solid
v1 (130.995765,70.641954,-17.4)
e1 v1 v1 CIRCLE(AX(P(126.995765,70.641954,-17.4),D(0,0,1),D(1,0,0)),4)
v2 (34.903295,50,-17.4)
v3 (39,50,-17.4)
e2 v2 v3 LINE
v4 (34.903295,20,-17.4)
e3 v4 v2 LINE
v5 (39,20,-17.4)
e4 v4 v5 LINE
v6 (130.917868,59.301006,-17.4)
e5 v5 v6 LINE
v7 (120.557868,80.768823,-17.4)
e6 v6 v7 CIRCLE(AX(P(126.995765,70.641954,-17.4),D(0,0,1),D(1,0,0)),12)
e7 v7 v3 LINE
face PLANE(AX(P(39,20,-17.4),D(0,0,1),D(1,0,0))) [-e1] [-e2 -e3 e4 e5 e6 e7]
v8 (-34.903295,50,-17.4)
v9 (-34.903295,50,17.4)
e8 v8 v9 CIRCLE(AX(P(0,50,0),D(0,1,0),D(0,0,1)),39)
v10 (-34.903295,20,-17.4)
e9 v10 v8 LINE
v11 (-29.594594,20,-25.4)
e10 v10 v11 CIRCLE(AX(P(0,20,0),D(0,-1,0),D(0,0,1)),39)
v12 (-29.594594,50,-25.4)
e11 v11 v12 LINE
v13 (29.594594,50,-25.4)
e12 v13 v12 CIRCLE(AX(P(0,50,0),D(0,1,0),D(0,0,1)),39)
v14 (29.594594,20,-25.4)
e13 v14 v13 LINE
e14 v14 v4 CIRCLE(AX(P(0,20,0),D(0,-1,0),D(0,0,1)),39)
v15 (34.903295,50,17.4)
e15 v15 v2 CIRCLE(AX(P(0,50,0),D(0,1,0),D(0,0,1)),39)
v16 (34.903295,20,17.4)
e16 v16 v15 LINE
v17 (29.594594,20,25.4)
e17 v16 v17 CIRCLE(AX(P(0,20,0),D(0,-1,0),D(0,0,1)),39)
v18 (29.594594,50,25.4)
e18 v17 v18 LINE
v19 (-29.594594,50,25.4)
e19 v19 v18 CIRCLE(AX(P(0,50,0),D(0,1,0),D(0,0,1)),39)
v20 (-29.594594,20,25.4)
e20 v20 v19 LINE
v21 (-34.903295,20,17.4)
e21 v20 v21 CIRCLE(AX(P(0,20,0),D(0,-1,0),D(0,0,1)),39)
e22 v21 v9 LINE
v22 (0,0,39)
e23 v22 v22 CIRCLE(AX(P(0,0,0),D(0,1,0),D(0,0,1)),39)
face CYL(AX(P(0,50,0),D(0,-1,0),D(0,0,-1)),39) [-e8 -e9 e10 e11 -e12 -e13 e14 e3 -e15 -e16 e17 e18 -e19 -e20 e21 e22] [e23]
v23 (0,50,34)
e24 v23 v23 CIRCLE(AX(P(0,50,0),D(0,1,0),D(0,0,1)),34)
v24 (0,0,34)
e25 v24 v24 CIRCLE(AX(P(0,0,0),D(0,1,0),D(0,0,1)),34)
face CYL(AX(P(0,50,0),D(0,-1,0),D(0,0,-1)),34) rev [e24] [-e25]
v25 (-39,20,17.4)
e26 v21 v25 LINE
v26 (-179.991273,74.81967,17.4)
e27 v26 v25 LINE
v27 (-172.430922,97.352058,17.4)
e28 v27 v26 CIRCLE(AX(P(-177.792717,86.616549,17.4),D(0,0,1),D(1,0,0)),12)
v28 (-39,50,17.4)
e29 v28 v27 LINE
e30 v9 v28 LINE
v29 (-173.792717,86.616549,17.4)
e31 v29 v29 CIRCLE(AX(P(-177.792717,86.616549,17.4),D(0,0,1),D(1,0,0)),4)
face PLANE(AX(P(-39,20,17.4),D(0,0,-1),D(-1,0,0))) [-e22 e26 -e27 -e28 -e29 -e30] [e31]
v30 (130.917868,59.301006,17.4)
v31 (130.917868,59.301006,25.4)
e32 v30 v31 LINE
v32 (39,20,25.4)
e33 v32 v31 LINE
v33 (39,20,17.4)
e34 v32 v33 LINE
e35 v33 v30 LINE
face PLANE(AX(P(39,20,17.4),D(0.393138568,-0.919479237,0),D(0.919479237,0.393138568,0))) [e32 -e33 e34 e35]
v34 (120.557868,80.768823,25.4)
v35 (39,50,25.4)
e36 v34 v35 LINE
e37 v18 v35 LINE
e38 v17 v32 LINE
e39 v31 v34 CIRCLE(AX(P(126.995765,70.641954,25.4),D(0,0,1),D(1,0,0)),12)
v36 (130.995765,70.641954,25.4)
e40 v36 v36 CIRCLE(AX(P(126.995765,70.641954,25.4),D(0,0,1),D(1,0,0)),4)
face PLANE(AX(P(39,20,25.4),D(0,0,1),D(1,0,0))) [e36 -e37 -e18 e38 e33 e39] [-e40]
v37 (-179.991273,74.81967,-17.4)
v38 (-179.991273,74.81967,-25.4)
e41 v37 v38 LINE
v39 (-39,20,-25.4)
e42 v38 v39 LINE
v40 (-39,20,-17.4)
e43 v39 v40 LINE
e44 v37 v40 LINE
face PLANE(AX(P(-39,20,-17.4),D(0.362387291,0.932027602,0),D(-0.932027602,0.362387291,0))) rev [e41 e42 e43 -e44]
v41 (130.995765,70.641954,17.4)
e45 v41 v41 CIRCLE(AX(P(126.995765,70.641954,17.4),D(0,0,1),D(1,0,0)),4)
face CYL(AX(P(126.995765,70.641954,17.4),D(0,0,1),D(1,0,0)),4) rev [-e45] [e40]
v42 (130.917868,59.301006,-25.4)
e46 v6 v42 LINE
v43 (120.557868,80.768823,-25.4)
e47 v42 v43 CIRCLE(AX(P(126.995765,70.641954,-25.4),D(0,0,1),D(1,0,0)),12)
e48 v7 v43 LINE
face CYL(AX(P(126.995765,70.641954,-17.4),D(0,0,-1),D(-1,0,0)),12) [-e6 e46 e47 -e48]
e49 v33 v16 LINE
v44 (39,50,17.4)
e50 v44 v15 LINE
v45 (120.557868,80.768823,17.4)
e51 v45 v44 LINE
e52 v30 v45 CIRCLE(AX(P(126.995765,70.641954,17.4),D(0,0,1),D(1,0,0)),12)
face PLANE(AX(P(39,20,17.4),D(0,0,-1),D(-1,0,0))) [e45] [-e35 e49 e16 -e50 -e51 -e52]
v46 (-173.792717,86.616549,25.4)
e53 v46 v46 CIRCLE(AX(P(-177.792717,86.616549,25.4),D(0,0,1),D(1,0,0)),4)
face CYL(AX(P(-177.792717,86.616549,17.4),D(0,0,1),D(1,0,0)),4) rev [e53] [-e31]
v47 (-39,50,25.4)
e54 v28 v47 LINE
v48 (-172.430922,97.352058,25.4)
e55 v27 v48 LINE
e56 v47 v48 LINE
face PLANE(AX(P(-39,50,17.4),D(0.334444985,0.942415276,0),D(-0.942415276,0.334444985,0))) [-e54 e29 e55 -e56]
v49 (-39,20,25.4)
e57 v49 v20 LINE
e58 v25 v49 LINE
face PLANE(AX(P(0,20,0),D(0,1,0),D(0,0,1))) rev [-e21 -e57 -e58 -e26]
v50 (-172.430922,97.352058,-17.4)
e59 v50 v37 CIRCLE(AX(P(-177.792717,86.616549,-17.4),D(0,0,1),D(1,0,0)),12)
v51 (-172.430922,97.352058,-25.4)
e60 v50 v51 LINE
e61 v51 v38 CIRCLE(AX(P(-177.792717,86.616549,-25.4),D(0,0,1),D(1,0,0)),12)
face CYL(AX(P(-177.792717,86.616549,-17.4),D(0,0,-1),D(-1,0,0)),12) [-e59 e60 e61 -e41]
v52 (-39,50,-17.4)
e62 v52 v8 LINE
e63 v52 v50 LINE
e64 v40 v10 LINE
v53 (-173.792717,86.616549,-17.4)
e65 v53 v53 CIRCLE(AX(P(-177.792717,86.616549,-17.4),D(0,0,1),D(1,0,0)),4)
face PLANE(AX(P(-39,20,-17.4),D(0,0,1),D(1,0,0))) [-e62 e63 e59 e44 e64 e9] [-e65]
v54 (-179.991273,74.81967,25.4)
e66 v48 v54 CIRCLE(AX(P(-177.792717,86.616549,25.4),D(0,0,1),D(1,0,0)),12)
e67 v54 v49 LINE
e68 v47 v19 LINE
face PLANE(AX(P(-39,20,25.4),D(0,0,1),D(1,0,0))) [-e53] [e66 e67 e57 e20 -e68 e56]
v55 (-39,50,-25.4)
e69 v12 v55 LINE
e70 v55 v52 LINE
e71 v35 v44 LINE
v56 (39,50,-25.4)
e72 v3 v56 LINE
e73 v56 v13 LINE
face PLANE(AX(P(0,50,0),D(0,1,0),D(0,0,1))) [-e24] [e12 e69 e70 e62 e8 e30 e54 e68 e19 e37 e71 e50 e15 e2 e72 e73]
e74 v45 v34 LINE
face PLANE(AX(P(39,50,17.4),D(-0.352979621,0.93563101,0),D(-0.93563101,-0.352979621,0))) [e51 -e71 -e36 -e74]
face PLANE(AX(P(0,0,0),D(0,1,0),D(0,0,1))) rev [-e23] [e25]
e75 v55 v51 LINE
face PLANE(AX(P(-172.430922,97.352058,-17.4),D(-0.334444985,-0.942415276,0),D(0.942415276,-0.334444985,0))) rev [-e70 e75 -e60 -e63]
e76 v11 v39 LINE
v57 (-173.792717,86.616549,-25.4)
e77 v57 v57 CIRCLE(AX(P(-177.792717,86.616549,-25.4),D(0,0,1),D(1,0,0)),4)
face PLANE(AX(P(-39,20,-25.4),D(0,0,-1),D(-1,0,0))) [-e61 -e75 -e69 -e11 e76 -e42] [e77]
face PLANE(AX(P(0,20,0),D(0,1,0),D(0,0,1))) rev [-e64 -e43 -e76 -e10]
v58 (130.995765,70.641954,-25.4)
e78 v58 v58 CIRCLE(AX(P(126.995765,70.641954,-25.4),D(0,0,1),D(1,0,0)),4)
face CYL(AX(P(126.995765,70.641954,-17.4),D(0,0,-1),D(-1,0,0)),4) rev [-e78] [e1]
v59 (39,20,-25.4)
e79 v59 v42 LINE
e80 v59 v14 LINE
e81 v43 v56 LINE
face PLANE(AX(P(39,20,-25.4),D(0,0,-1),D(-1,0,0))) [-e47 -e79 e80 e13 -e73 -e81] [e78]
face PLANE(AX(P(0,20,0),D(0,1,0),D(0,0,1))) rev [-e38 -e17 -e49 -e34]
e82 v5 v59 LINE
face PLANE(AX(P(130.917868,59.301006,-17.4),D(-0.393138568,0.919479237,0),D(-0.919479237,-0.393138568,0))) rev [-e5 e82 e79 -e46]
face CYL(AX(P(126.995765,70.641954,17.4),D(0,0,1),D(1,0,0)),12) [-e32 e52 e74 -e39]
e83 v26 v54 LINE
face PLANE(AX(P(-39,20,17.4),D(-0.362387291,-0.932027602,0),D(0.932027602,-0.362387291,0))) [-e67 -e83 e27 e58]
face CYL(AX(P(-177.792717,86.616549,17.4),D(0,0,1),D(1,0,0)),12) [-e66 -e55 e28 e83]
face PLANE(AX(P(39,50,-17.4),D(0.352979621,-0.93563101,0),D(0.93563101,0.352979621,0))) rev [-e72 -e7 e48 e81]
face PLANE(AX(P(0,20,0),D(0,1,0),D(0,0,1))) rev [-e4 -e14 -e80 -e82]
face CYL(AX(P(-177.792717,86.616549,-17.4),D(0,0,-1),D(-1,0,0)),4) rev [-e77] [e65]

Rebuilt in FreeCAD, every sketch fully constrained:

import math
import FreeCAD as App
import Part
import Sketcher

V = App.Vector
Q = App.Units.Quantity

doc = App.newDocument("Part")
body = doc.addObject("PartDesign::Body", "Body")

sketch1 = body.newObject("Sketcher::SketchObject", "Sketch")
sketch1.AttachmentSupport = (doc.getObject("XZ_Plane"), [""])
sketch1.MapMode = "FlatFace"
sketch1.addGeometry(Part.Circle(V(0, 0, 0), V(0, 0, 1), 39), False)
sketch1.addGeometry(Part.Circle(V(0, 0, 0), V(0, 0, 1), 34), False)
sketch1.addConstraint(Sketcher.Constraint("Coincident", 0, 3, -1, 1))
sketch1.addConstraint(Sketcher.Constraint("Coincident", 1, 3, -1, 1))
sketch1.addConstraint(Sketcher.Constraint("Diameter", 0, Q("78 mm")))
sketch1.addConstraint(Sketcher.Constraint("Diameter", 1, Q("68 mm")))
pad1 = body.newObject("PartDesign::Pad", "Pad")
pad1.Profile = sketch1
pad1.Length = 50
pad1.Reversed = True
body2 = doc.addObject("PartDesign::Body", "Body001")

sketch2 = body2.newObject("Sketcher::SketchObject", "Sketch001")
sketch2.AttachmentSupport = (doc.getObject("XY_Plane001"), [""])
sketch2.MapMode = "FlatFace"
sketch2.AttachmentOffset = App.Placement(V(0, 0, 25.4), App.Rotation())
sketch2.addGeometry(Part.LineSegment(V(-39, 20, 0), V(-39, 50, 0)), False)
sketch2.addGeometry(Part.LineSegment(V(-39, 50, 0), V(-172.4, 97.4, 0)), False)
sketch2.addGeometry(Part.ArcOfCircle(Part.Circle(V(-177.8, 86.6, 0), V(0, 0, 1), 12), math.radians(63), math.radians(259)), False)
sketch2.addGeometry(Part.LineSegment(V(-180, 74.8, 0), V(-39, 20, 0)), False)
sketch2.addGeometry(Part.Circle(V(-177.8, 86.6, 0), V(0, 0, 1), 4), False)
sketch2.addConstraint(Sketcher.Constraint("Coincident", 0, 2, 1, 1))
sketch2.addConstraint(Sketcher.Constraint("Coincident", 1, 2, 2, 1))
sketch2.addConstraint(Sketcher.Constraint("Coincident", 2, 2, 3, 1))
sketch2.addConstraint(Sketcher.Constraint("Coincident", 3, 2, 0, 1))
sketch2.addConstraint(Sketcher.Constraint("Vertical", 0))
sketch2.addConstraint(Sketcher.Constraint("Coincident", 4, 3, 2, 3))
sketch2.addConstraint(Sketcher.Constraint("Diameter", 4, Q("8 mm")))
sketch2.addConstraint(Sketcher.Constraint("Radius", 2, Q("12 mm")))
sketch2.addConstraint(Sketcher.Constraint("DistanceY", 0, 1, 0, 2, Q("30 mm")))
sketch2.addConstraint(Sketcher.Constraint("DistanceX", 0, 2, -1, 1, Q("39 mm")))
sketch2.addConstraint(Sketcher.Constraint("DistanceY", -1, 1, 0, 2, Q("50 mm")))
sketch2.addConstraint(Sketcher.Constraint("Distance", 3, Q("151.27371 mm")))
sketch2.addConstraint(Sketcher.Constraint("DistanceY", -1, 1, 2, 3, Q("86.616549 mm")))
sketch2.addConstraint(Sketcher.Constraint("DistanceY", -1, 1, 2, 2, Q("74.81967 mm")))
sketch2.addConstraint(Sketcher.Constraint("DistanceY", 2, 3, 1, 2, Q("10.735509 mm")))
pad2 = body2.newObject("PartDesign::Pad", "Pad001")
pad2.Profile = sketch2
pad2.Length = 8
pad2.Reversed = True
body3 = doc.addObject("PartDesign::Body", "Body002")

sketch3 = body3.newObject("Sketcher::SketchObject", "Sketch002")
sketch3.AttachmentSupport = (doc.getObject("XY_Plane002"), [""])
sketch3.MapMode = "FlatFace"
sketch3.AttachmentOffset = App.Placement(V(0, 0, 25.4), App.Rotation())
sketch3.addGeometry(Part.LineSegment(V(39, 50, 0), V(39, 20, 0)), False)
sketch3.addGeometry(Part.LineSegment(V(39, 20, 0), V(130.9, 59.3, 0)), False)
sketch3.addGeometry(Part.ArcOfCircle(Part.Circle(V(127, 70.6, 0), V(0, 0, 1), 12), math.radians(-71), math.radians(122)), False)
sketch3.addGeometry(Part.LineSegment(V(120.6, 80.8, 0), V(39, 50, 0)), False)
sketch3.addGeometry(Part.Circle(V(127, 70.6, 0), V(0, 0, 1), 4), False)
sketch3.addConstraint(Sketcher.Constraint("Coincident", 0, 2, 1, 1))
sketch3.addConstraint(Sketcher.Constraint("Coincident", 1, 2, 2, 1))
sketch3.addConstraint(Sketcher.Constraint("Coincident", 2, 2, 3, 1))
sketch3.addConstraint(Sketcher.Constraint("Coincident", 3, 2, 0, 1))
sketch3.addConstraint(Sketcher.Constraint("Vertical", 0))
sketch3.addConstraint(Sketcher.Constraint("Coincident", 4, 3, 2, 3))
sketch3.addConstraint(Sketcher.Constraint("Diameter", 4, Q("8 mm")))
sketch3.addConstraint(Sketcher.Constraint("Radius", 2, Q("12 mm")))
sketch3.addConstraint(Sketcher.Constraint("DistanceY", 0, 2, 0, 1, Q("30 mm")))
sketch3.addConstraint(Sketcher.Constraint("DistanceX", -1, 1, 0, 2, Q("39 mm")))
sketch3.addConstraint(Sketcher.Constraint("DistanceY", -1, 1, 0, 2, Q("20 mm")))
sketch3.addConstraint(Sketcher.Constraint("DistanceX", 2, 2, 1, 2, Q("10.36 mm")))
sketch3.addConstraint(Sketcher.Constraint("Distance", 1, Q("99.967312 mm")))
sketch3.addConstraint(Sketcher.Constraint("DistanceY", 1, 2, 2, 3, Q("11.340948 mm")))
sketch3.addConstraint(Sketcher.Constraint("Distance", 3, Q("87.168838 mm")))
pad3 = body3.newObject("PartDesign::Pad", "Pad002")
pad3.Profile = sketch3
pad3.Length = 8
pad3.Reversed = True
body4 = doc.addObject("PartDesign::Body", "Body003")

sketch4 = body4.newObject("Sketcher::SketchObject", "Sketch003")
sketch4.AttachmentSupport = (doc.getObject("XY_Plane003"), [""])
sketch4.MapMode = "FlatFace"
sketch4.AttachmentOffset = App.Placement(V(0, 0, -25.4), App.Rotation())
sketch4.addGeometry(Part.LineSegment(V(120.6, 80.8, 0), V(39, 50, 0)), False)
sketch4.addGeometry(Part.LineSegment(V(39, 50, 0), V(39, 20, 0)), False)
sketch4.addGeometry(Part.LineSegment(V(39, 20, 0), V(130.9, 59.3, 0)), False)
sketch4.addGeometry(Part.ArcOfCircle(Part.Circle(V(127, 70.6, 0), V(0, 0, 1), 12), math.radians(-71), math.radians(122)), False)
sketch4.addGeometry(Part.Circle(V(127, 70.6, 0), V(0, 0, 1), 4), False)
sketch4.addConstraint(Sketcher.Constraint("Coincident", 0, 2, 1, 1))
sketch4.addConstraint(Sketcher.Constraint("Coincident", 1, 2, 2, 1))
sketch4.addConstraint(Sketcher.Constraint("Coincident", 2, 2, 3, 1))
sketch4.addConstraint(Sketcher.Constraint("Coincident", 3, 2, 0, 1))
sketch4.addConstraint(Sketcher.Constraint("Vertical", 1))
sketch4.addConstraint(Sketcher.Constraint("Coincident", 4, 3, 3, 3))
sketch4.addConstraint(Sketcher.Constraint("Diameter", 4, Q("8 mm")))
sketch4.addConstraint(Sketcher.Constraint("Radius", 3, Q("12 mm")))
sketch4.addConstraint(Sketcher.Constraint("DistanceY", 1, 2, 1, 1, Q("30 mm")))
sketch4.addConstraint(Sketcher.Constraint("DistanceX", -1, 1, 0, 2, Q("39 mm")))
sketch4.addConstraint(Sketcher.Constraint("DistanceY", -1, 1, 0, 2, Q("50 mm")))
sketch4.addConstraint(Sketcher.Constraint("DistanceX", 3, 2, 2, 2, Q("10.36 mm")))
sketch4.addConstraint(Sketcher.Constraint("Distance", 2, Q("99.967312 mm")))
sketch4.addConstraint(Sketcher.Constraint("DistanceY", 2, 2, 3, 3, Q("11.340948 mm")))
sketch4.addConstraint(Sketcher.Constraint("Distance", 0, Q("87.168838 mm")))
pad4 = body4.newObject("PartDesign::Pad", "Pad003")
pad4.Profile = sketch4
pad4.Length = 8
body5 = doc.addObject("PartDesign::Body", "Body004")

sketch5 = body5.newObject("Sketcher::SketchObject", "Sketch004")
sketch5.AttachmentSupport = (doc.getObject("XY_Plane004"), [""])
sketch5.MapMode = "FlatFace"
sketch5.AttachmentOffset = App.Placement(V(0, 0, -25.4), App.Rotation())
sketch5.addGeometry(Part.LineSegment(V(-39, 50, 0), V(-172.4, 97.4, 0)), False)
sketch5.addGeometry(Part.ArcOfCircle(Part.Circle(V(-177.8, 86.6, 0), V(0, 0, 1), 12), math.radians(63), math.radians(259)), False)
sketch5.addGeometry(Part.LineSegment(V(-180, 74.8, 0), V(-39, 20, 0)), False)
sketch5.addGeometry(Part.LineSegment(V(-39, 20, 0), V(-39, 50, 0)), False)
sketch5.addGeometry(Part.Circle(V(-177.8, 86.6, 0), V(0, 0, 1), 4), False)
sketch5.addConstraint(Sketcher.Constraint("Coincident", 0, 2, 1, 1))
sketch5.addConstraint(Sketcher.Constraint("Coincident", 1, 2, 2, 1))
sketch5.addConstraint(Sketcher.Constraint("Coincident", 2, 2, 3, 1))
sketch5.addConstraint(Sketcher.Constraint("Coincident", 3, 2, 0, 1))
sketch5.addConstraint(Sketcher.Constraint("Vertical", 3))
sketch5.addConstraint(Sketcher.Constraint("Coincident", 4, 3, 1, 3))
sketch5.addConstraint(Sketcher.Constraint("Diameter", 4, Q("8 mm")))
sketch5.addConstraint(Sketcher.Constraint("Radius", 1, Q("12 mm")))
sketch5.addConstraint(Sketcher.Constraint("DistanceY", 3, 1, 3, 2, Q("30 mm")))
sketch5.addConstraint(Sketcher.Constraint("DistanceX", 2, 2, -1, 1, Q("39 mm")))
sketch5.addConstraint(Sketcher.Constraint("DistanceY", -1, 1, 2, 2, Q("20 mm")))
sketch5.addConstraint(Sketcher.Constraint("Distance", 2, Q("151.27371 mm")))
sketch5.addConstraint(Sketcher.Constraint("DistanceY", -1, 1, 1, 3, Q("86.616549 mm")))
sketch5.addConstraint(Sketcher.Constraint("DistanceY", -1, 1, 1, 2, Q("74.81967 mm")))
sketch5.addConstraint(Sketcher.Constraint("DistanceY", 1, 3, 0, 2, Q("10.735509 mm")))
pad5 = body5.newObject("PartDesign::Pad", "Pad004")
pad5.Profile = sketch5
pad5.Length = 8
body.AllowCompound = True
doc.recompute()

boolean = body.newObject("PartDesign::Boolean", "Boolean")
boolean.Type = "Fuse"
boolean.addObjects([body2])
doc.recompute()

boolean2 = body.newObject("PartDesign::Boolean", "Boolean001")
boolean2.Type = "Fuse"
boolean2.addObjects([body3])
doc.recompute()

boolean3 = body.newObject("PartDesign::Boolean", "Boolean002")
boolean3.Type = "Fuse"
boolean3.addObjects([body4])
doc.recompute()

boolean4 = body.newObject("PartDesign::Boolean", "Boolean003")
boolean4.Type = "Fuse"
boolean4.addObjects([body5])

sketch6 = body.newObject("Sketcher::SketchObject", "Sketch005")
sketch6.AttachmentSupport = (doc.getObject("XZ_Plane"), [""])
sketch6.MapMode = "FlatFace"
sketch6.AttachmentOffset = App.Placement(V(0, 0, -20), App.Rotation())
sketch6.addGeometry(Part.LineSegment(V(39, -17.4, 0), V(39, -25.4, 0)), False)
sketch6.addGeometry(Part.LineSegment(V(39, -25.4, 0), V(29.6, -25.4, 0)), False)
sketch6.addGeometry(Part.ArcOfCircle(Part.Circle(V(0, 0, 0), V(0, 0, 1), 39), math.radians(-40.64), math.radians(-26.5)), False)
sketch6.addGeometry(Part.LineSegment(V(34.9, -17.4, 0), V(39, -17.4, 0)), False)
sketch6.addGeometry(Part.LineSegment(V(39, 25.4, 0), V(39, 17.4, 0)), False)
sketch6.addGeometry(Part.LineSegment(V(39, 17.4, 0), V(34.9, 17.4, 0)), False)
sketch6.addGeometry(Part.ArcOfCircle(Part.Circle(V(0, 0, 0), V(0, 0, 1), 39), math.radians(26.5), math.radians(40.64)), False)
sketch6.addGeometry(Part.LineSegment(V(29.6, 25.4, 0), V(39, 25.4, 0)), False)
sketch6.addGeometry(Part.LineSegment(V(-39, 17.4, 0), V(-39, 25.4, 0)), False)
sketch6.addGeometry(Part.LineSegment(V(-39, 25.4, 0), V(-29.6, 25.4, 0)), False)
sketch6.addGeometry(Part.ArcOfCircle(Part.Circle(V(0, 0, 0), V(0, 0, 1), 39), math.radians(139.36), math.radians(153.5)), False)
sketch6.addGeometry(Part.LineSegment(V(-34.9, 17.4, 0), V(-39, 17.4, 0)), False)
sketch6.addGeometry(Part.LineSegment(V(-39, -25.4, 0), V(-39, -17.4, 0)), False)
sketch6.addGeometry(Part.LineSegment(V(-39, -17.4, 0), V(-34.9, -17.4, 0)), False)
sketch6.addGeometry(Part.ArcOfCircle(Part.Circle(V(0, 0, 0), V(0, 0, 1), 39), math.radians(-153.5), math.radians(-139.36)), False)
sketch6.addGeometry(Part.LineSegment(V(-29.6, -25.4, 0), V(-39, -25.4, 0)), False)
sketch6.addConstraint(Sketcher.Constraint("Coincident", 0, 2, 1, 1))
sketch6.addConstraint(Sketcher.Constraint("Coincident", 1, 2, 2, 1))
sketch6.addConstraint(Sketcher.Constraint("Coincident", 2, 2, 3, 1))
sketch6.addConstraint(Sketcher.Constraint("Coincident", 3, 2, 0, 1))
sketch6.addConstraint(Sketcher.Constraint("Coincident", 4, 2, 5, 1))
sketch6.addConstraint(Sketcher.Constraint("Coincident", 5, 2, 6, 1))
sketch6.addConstraint(Sketcher.Constraint("Coincident", 6, 2, 7, 1))
sketch6.addConstraint(Sketcher.Constraint("Coincident", 7, 2, 4, 1))
sketch6.addConstraint(Sketcher.Constraint("Coincident", 8, 2, 9, 1))
sketch6.addConstraint(Sketcher.Constraint("Coincident", 9, 2, 10, 1))
sketch6.addConstraint(Sketcher.Constraint("Coincident", 10, 2, 11, 1))
sketch6.addConstraint(Sketcher.Constraint("Coincident", 11, 2, 8, 1))
sketch6.addConstraint(Sketcher.Constraint("Coincident", 12, 2, 13, 1))
sketch6.addConstraint(Sketcher.Constraint("Coincident", 13, 2, 14, 1))
sketch6.addConstraint(Sketcher.Constraint("Coincident", 14, 2, 15, 1))
sketch6.addConstraint(Sketcher.Constraint("Coincident", 15, 2, 12, 1))
sketch6.addConstraint(Sketcher.Constraint("Vertical", 0))
sketch6.addConstraint(Sketcher.Constraint("Horizontal", 1))
sketch6.addConstraint(Sketcher.Constraint("Horizontal", 3))
sketch6.addConstraint(Sketcher.Constraint("Vertical", 4))
sketch6.addConstraint(Sketcher.Constraint("Horizontal", 5))
sketch6.addConstraint(Sketcher.Constraint("Horizontal", 7))
sketch6.addConstraint(Sketcher.Constraint("Vertical", 8))
sketch6.addConstraint(Sketcher.Constraint("Horizontal", 9))
sketch6.addConstraint(Sketcher.Constraint("Horizontal", 11))
sketch6.addConstraint(Sketcher.Constraint("Vertical", 12))
sketch6.addConstraint(Sketcher.Constraint("Horizontal", 13))
sketch6.addConstraint(Sketcher.Constraint("Horizontal", 15))
sketch6.addConstraint(Sketcher.Constraint("Coincident", 2, 3, -1, 1))
sketch6.addConstraint(Sketcher.Constraint("Coincident", 6, 3, -1, 1))
sketch6.addConstraint(Sketcher.Constraint("Coincident", 10, 3, -1, 1))
sketch6.addConstraint(Sketcher.Constraint("Coincident", 14, 3, -1, 1))
sketch6.addConstraint(Sketcher.Constraint("Equal", 2, 6))
sketch6.addConstraint(Sketcher.Constraint("Equal", 6, 10))
sketch6.addConstraint(Sketcher.Constraint("Equal", 10, 14))
sketch6.addConstraint(Sketcher.Constraint("Symmetric", 0, 2, 8, 2, -1, 1))
sketch6.addConstraint(Sketcher.Constraint("Symmetric", 4, 2, 12, 2, -1, 1))
sketch6.addConstraint(Sketcher.Constraint("Symmetric", 7, 2, 8, 2, -2))
sketch6.addConstraint(Sketcher.Constraint("Horizontal", 5, 2, 10, 2))
sketch6.addConstraint(Sketcher.Constraint("Horizontal", 3, 2, 12, 2))
sketch6.addConstraint(Sketcher.Constraint("Horizontal", 1, 2, 14, 2))
sketch6.addConstraint(Sketcher.Constraint("Radius", 2, Q("39 mm")))
sketch6.addConstraint(Sketcher.Constraint("DistanceY", 0, 2, 0, 1, Q("8 mm")))
sketch6.addConstraint(Sketcher.Constraint("DistanceX", -1, 1, 0, 2, Q("39 mm")))
sketch6.addConstraint(Sketcher.Constraint("DistanceY", 0, 2, -1, 1, Q("25.4 mm")))
pad6 = body.newObject("PartDesign::Pad", "Pad005")
pad6.Profile = sketch6
pad6.Length = 30
pad6.Reversed = True

doc.recompute()
